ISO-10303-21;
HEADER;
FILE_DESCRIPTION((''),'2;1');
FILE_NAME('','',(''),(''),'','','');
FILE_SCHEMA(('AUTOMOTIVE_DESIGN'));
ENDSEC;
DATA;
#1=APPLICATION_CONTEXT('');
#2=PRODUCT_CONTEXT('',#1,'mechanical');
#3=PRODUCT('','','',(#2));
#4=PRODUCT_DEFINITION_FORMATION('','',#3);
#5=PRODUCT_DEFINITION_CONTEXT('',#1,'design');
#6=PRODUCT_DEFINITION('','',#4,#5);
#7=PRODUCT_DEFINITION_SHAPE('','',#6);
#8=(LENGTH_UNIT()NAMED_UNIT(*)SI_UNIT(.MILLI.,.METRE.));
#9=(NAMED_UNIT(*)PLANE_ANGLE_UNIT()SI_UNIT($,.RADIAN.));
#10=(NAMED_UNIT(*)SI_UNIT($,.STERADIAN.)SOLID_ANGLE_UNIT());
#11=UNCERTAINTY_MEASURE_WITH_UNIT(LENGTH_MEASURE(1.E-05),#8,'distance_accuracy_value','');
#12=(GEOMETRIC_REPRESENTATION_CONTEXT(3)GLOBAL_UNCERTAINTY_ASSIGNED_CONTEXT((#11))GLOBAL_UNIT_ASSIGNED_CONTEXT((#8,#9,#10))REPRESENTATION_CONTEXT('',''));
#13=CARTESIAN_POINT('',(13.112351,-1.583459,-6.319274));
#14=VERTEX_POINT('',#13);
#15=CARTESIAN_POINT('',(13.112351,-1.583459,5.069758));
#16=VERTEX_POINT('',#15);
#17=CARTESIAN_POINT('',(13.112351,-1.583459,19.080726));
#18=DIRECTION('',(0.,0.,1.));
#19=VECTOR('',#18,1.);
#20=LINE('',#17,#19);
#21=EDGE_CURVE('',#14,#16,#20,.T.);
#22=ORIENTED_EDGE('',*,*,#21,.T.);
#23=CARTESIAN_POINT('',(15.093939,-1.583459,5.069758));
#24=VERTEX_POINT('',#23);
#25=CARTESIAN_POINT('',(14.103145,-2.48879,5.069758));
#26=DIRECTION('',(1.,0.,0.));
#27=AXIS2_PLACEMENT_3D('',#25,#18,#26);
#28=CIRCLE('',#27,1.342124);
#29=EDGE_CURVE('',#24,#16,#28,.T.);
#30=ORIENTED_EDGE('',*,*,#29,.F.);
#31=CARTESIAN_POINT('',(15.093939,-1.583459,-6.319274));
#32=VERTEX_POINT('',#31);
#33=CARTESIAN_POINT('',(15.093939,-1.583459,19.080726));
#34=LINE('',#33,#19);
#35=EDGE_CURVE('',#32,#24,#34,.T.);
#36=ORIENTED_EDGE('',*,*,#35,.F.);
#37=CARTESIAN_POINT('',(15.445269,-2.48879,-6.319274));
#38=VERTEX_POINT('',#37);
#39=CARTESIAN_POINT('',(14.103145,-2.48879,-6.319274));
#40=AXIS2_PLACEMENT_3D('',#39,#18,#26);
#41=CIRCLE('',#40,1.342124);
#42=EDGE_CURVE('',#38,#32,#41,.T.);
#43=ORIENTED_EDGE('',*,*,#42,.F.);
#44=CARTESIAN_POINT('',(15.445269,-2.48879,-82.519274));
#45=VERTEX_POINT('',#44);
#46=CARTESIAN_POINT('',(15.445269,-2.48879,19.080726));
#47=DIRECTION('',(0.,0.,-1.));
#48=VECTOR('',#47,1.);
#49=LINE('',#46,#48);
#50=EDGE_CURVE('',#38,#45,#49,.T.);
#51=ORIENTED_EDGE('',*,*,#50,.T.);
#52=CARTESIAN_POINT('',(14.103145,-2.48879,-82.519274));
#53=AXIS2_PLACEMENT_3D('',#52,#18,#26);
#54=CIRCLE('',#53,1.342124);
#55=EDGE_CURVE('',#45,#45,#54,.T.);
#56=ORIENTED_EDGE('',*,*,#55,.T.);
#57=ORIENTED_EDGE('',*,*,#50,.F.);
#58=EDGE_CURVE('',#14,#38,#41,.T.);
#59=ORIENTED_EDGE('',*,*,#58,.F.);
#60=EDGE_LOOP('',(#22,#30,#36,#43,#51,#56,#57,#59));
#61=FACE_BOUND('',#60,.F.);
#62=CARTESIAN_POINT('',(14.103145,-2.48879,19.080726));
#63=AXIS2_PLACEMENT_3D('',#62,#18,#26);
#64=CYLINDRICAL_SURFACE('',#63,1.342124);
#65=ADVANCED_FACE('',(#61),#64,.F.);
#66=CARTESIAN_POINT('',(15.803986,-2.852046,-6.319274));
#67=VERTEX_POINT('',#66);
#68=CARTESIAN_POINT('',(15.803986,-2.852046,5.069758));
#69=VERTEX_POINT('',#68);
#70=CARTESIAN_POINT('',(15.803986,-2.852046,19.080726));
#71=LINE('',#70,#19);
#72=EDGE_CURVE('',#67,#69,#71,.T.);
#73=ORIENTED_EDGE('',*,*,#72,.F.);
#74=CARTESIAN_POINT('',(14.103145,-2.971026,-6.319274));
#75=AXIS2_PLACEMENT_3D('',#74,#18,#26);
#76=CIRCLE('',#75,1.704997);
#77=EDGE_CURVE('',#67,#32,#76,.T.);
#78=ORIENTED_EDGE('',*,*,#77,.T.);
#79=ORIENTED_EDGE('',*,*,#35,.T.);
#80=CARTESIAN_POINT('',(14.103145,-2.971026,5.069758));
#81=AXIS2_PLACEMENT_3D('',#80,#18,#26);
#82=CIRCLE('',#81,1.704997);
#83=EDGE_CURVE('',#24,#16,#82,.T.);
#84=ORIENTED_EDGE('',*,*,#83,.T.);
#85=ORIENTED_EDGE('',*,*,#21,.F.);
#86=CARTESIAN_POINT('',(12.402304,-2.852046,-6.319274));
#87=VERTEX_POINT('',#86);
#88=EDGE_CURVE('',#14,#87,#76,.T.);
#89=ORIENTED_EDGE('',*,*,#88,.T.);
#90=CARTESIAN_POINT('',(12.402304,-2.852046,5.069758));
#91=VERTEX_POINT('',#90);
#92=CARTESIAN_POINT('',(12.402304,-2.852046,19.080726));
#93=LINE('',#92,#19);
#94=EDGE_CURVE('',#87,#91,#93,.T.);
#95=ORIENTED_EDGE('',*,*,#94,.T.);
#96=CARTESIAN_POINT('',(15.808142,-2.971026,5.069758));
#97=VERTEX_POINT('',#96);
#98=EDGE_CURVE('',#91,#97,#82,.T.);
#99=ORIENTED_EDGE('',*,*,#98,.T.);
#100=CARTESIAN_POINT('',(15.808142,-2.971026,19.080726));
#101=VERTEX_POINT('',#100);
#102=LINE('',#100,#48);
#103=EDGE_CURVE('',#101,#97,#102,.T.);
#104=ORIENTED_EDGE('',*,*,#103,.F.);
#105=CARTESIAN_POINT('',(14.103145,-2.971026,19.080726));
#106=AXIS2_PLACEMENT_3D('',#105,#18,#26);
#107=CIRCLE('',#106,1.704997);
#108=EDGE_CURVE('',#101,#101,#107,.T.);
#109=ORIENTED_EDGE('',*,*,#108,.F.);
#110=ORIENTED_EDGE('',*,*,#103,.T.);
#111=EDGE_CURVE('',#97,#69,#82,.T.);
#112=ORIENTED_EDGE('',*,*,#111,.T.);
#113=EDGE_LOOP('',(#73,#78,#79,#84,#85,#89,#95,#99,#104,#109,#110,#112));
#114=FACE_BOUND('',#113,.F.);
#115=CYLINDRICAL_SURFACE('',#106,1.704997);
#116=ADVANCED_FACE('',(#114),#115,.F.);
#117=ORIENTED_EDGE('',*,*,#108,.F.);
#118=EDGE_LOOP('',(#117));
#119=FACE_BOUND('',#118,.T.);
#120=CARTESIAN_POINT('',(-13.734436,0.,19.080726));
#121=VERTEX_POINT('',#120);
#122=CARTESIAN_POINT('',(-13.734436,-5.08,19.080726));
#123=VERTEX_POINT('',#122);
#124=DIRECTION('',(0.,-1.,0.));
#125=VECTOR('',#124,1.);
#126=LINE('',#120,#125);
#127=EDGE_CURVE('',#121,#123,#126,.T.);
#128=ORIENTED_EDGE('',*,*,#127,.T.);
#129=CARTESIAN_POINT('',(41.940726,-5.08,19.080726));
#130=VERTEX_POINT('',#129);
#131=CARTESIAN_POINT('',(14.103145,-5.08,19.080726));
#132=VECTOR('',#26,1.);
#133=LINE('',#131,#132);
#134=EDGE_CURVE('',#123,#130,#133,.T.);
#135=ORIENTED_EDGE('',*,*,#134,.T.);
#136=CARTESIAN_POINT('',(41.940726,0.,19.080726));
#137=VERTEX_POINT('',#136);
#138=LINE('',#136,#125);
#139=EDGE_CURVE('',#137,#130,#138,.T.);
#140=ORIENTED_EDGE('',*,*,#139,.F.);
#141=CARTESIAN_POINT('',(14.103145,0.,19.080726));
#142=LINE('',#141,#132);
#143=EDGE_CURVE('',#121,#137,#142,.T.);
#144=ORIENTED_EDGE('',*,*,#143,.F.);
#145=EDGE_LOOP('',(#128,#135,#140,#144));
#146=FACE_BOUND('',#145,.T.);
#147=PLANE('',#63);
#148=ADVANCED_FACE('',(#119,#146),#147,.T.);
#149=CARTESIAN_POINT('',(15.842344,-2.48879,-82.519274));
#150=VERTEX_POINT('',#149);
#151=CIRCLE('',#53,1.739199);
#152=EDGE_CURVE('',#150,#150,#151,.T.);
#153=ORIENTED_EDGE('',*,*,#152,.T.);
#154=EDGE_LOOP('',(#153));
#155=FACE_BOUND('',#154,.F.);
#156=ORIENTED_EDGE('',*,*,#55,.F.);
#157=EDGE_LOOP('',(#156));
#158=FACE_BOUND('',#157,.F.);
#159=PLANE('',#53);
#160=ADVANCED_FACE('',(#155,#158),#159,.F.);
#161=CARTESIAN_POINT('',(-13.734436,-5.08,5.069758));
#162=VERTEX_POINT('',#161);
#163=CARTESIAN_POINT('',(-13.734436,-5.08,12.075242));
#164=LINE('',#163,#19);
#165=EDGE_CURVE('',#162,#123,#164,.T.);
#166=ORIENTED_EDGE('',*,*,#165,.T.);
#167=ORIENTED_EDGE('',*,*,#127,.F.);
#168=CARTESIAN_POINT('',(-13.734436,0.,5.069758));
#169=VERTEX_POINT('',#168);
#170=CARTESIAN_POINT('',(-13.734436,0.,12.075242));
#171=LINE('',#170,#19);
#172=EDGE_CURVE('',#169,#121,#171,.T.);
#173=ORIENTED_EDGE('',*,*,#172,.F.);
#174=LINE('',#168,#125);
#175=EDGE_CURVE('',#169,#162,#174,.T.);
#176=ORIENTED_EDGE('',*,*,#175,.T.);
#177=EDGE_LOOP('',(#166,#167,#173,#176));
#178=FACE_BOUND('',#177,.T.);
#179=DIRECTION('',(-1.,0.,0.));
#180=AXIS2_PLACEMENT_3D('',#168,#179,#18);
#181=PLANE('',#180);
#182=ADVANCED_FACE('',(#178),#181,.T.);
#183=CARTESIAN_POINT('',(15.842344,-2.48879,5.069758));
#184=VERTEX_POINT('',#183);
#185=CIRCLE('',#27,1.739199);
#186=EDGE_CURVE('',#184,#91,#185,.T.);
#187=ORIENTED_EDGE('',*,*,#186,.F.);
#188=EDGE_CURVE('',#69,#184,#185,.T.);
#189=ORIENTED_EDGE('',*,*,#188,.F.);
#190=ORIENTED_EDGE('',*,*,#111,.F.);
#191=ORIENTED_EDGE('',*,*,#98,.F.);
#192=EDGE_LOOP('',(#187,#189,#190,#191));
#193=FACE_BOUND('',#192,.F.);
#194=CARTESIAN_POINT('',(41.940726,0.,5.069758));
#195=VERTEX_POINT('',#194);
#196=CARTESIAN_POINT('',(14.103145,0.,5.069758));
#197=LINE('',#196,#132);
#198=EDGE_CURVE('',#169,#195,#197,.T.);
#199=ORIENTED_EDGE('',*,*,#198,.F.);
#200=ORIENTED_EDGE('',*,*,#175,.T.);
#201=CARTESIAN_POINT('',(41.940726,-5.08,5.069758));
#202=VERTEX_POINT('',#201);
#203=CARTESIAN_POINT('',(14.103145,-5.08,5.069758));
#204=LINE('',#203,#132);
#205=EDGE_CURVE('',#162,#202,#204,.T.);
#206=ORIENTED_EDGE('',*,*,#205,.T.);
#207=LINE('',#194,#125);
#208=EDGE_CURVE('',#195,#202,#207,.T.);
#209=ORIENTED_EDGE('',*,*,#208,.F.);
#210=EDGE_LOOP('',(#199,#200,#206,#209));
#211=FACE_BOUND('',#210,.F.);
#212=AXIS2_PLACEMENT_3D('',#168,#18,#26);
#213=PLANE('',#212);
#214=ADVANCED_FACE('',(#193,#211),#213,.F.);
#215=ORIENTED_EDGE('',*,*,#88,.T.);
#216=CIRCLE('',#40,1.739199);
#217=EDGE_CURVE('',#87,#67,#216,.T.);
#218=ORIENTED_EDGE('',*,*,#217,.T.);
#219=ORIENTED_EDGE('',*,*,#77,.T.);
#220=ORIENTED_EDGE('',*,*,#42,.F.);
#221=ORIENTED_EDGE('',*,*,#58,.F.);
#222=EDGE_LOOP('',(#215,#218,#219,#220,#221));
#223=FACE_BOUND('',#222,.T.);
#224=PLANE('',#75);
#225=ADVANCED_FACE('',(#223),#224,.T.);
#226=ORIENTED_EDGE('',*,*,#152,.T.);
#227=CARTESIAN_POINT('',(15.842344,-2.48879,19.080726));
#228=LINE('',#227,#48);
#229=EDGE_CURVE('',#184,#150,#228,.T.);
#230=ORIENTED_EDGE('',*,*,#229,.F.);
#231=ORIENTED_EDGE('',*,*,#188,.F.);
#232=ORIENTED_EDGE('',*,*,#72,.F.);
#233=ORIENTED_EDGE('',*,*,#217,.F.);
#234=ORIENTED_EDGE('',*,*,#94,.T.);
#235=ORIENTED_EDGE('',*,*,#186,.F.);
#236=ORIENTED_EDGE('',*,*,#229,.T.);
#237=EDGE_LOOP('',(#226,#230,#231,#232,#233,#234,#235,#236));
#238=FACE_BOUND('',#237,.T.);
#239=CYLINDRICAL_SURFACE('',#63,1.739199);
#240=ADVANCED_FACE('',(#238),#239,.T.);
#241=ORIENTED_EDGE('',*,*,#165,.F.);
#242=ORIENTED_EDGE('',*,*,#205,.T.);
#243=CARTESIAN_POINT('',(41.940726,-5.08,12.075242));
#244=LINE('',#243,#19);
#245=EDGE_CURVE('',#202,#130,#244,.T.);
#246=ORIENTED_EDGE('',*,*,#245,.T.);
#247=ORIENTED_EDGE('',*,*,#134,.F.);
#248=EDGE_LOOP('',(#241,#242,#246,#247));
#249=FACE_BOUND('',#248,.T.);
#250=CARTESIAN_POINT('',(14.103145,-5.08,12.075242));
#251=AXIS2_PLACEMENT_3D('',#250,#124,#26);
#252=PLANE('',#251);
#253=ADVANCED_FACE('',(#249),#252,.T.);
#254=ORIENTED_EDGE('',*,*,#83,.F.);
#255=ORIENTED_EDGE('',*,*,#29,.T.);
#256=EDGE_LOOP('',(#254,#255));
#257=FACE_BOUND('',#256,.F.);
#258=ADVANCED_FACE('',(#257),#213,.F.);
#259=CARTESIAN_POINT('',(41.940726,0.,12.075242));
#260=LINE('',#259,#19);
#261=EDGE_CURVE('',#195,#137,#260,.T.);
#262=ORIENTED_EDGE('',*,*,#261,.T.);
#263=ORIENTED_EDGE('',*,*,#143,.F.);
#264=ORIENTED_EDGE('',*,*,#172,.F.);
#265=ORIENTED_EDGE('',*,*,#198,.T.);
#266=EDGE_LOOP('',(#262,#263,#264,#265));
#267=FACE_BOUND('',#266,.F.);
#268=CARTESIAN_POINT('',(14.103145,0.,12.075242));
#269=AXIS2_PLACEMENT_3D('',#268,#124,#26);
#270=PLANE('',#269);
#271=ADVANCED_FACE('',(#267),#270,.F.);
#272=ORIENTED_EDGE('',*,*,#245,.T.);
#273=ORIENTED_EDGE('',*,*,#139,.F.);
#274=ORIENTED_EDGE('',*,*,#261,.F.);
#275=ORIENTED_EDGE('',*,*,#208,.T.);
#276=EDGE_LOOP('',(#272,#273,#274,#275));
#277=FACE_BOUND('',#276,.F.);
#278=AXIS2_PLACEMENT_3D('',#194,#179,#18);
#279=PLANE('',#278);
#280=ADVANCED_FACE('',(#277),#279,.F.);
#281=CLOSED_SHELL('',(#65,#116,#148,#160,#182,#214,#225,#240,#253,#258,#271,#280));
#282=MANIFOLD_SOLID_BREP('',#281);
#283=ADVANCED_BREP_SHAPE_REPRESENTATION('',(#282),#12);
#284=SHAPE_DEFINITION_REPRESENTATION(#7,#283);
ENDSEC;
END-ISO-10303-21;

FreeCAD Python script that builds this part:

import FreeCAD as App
import Part
import Sketcher
from FreeCAD import Vector
Q = App.Units.Quantity


def add_polygon(sketch, points):
    """Adds a closed chain of lines whose ends are joined by coincident constraints."""
    first, n = sketch.GeometryCount, len(points)
    for a, b in zip(points, points[1:] + points[:1]):
        sketch.addGeometry(Part.LineSegment(App.Vector(*a, 0), App.Vector(*b, 0)), False)
    for i in range(n):
        sketch.addConstraint(Sketcher.Constraint("Coincident", first + i, 2, first + (i + 1) % n, 1))

doc = App.newDocument("Part")
body = doc.addObject("PartDesign::Body", "Body")

# Sketch on XZ plane
sketch1 = body.newObject("Sketcher::SketchObject", "Sketch")
sketch1.AttachmentSupport = (doc.getObject("XZ_Plane"), [""])
sketch1.MapMode = "FlatFace"
add_polygon(sketch1, [(-14, 19), (-14, 5), (42, 5), (42, 19)])  # lines 0-3
sketch1.addConstraint([
    Sketcher.Constraint("Vertical", 0),
    Sketcher.Constraint("Horizontal", 1),
    Sketcher.Constraint("Vertical", 2),
    Sketcher.Constraint("Horizontal", 3),
    Sketcher.Constraint("DistanceX", 1, 1, 1, 2, Q("55.675162 mm")),
    Sketcher.Constraint("DistanceY", 0, 2, 0, 1, Q("14.010968 mm")),
    Sketcher.Constraint("DistanceY", -1, 1, 0, 2, Q("5.069758 mm")),
    Sketcher.Constraint("DistanceX", 0, 2, -1, 1, Q("13.734436 mm")),
])
pad1 = body.newObject("PartDesign::Pad", "Pad")
pad1.Profile = sketch1
pad1.Length = Q("0.2 in")

# Sketch on XY plane
sketch2 = body.newObject("Sketcher::SketchObject", "Sketch001")
sketch2.AttachmentSupport = (doc.getObject("XY_Plane"), [""])
sketch2.MapMode = "FlatFace"
sketch2.AttachmentOffset = App.Placement(Vector(0, 0, 19.080726), App.Rotation())
sketch2.addGeometry([
    Part.Circle(Vector(14.1, -2.5, 0), Vector(0, 0, 1), 1.7),
    Part.Circle(Vector(14.1, -2.5, 0), Vector(0, 0, 1), 1.3),
], False)
sketch2.addConstraint([
    Sketcher.Constraint("Coincident", 1, 3, 0, 3),
    Sketcher.Constraint("Diameter", 1, Q("2.684248 mm")),
    Sketcher.Constraint("Diameter", 0, Q("3.478398 mm")),
    Sketcher.Constraint("DistanceY", 0, 3, -1, 1, Q("2.48879 mm")),
    Sketcher.Constraint("DistanceX", -1, 1, 0, 3, Q("14.103145 mm")),
])
pad2 = body.newObject("PartDesign::Pad", "Pad001")
pad2.Profile = sketch2
pad2.Length = Q("4 in")
pad2.Reversed = True

# Sketch on XY plane
sketch3 = body.newObject("Sketcher::SketchObject", "Sketch002")
sketch3.AttachmentSupport = (doc.getObject("XY_Plane"), [""])
sketch3.MapMode = "FlatFace"
sketch3.AttachmentOffset = App.Placement(Vector(0, 0, 19.080726), App.Rotation())
sketch3.addGeometry(Part.Circle(Vector(14.1, -3, 0), Vector(0, 0, 1), 1.7), False)
sketch3.addConstraint([
    Sketcher.Constraint("Diameter", 0, Q("3.409994 mm")),
    Sketcher.Constraint("DistanceX", -1, 1, 0, 3, Q("14.103145 mm")),
    Sketcher.Constraint("DistanceY", 0, 3, -1, 1, Q("2.971026 mm")),
])
pocket1 = body.newObject("PartDesign::Pocket", "Pocket")
pocket1.Profile = sketch3
pocket1.Length = Q("1 in")

doc.recompute()
